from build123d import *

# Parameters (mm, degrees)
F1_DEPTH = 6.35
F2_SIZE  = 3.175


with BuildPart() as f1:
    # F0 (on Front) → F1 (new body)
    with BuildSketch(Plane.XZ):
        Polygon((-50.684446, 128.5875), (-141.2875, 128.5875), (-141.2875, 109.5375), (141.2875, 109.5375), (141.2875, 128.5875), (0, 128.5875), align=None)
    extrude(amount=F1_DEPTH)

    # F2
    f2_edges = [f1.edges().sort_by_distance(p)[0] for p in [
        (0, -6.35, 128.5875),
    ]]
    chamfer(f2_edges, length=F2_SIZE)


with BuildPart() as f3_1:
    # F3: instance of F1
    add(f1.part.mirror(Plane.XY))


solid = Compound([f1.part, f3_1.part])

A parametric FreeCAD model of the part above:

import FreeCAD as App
import Part
import Sketcher

V = App.Vector
Q = App.Units.Quantity


def edges_at(feature, points):
    """Names of the edges that pass closest to the given points."""
    edges = feature.Shape.Edges
    near = lambda p: min(range(len(edges)), key=lambda i: edges[i].distToShape(Part.Vertex(*p))[0])
    return sorted({f"Edge{near(p) + 1}" for p in points})

doc = App.newDocument("Part")
params = doc.addObject("Spreadsheet::Sheet", "Params")
for row, (alias, value) in enumerate([
    ("sketch1_height", "0.75 in"),
    ("sketch1_width", "11.125 in"),
    ("pad1_length", "0.25 in"),
    ("chamfer_size", "0.125 in"),
], start=1):
    params.set(f"A{row}", alias)
    params.set(f"B{row}", "=" + value)
    params.setAlias(f"B{row}", alias)

body = doc.addObject("PartDesign::Body", "Body")

# Sketch on XZ plane
sketch1 = doc.addObject("Sketcher::SketchObject", "Sketch")
body.addObject(sketch1)
sketch1.AttachmentSupport = (doc.XZ_Plane, [""])
sketch1.MapMode = "FlatFace"
sketch1.addGeometry([
    Part.LineSegment(V(-141, 129, 0), V(-141, 110, 0)),
    Part.LineSegment(V(-141, 110, 0), V(141, 110, 0)),
    Part.LineSegment(V(141, 110, 0), V(141, 129, 0)),
    Part.LineSegment(V(141, 129, 0), V(-141, 129, 0)),
], False)
sketch1.addConstraint([
    Sketcher.Constraint("Coincident", 0, 2, 1, 1),
    Sketcher.Constraint("Coincident", 1, 2, 2, 1),
    Sketcher.Constraint("Coincident", 2, 2, 3, 1),
    Sketcher.Constraint("Coincident", 3, 2, 0, 1),
    Sketcher.Constraint("Vertical", 0),
    Sketcher.Constraint("Horizontal", 1),
    Sketcher.Constraint("Vertical", 2),
    Sketcher.Constraint("Horizontal", 3),
    Sketcher.Constraint("DistanceY", 0, 2, 0, 1, Q("0.75 in")),
    Sketcher.Constraint("DistanceX", 1, 1, 1, 2, Q("11.125 in")),
    Sketcher.Constraint("DistanceX", 0, 2, -1, 1, Q("5.5625 in")),
    Sketcher.Constraint("DistanceY", -1, 1, 0, 2, Q("4.3125 in")),
])
sketch1.setExpression("Constraints[8]", "Params.sketch1_height")
sketch1.setExpression("Constraints[9]", "Params.sketch1_width")
pad1 = doc.addObject("PartDesign::Pad", "Pad")
body.addObject(pad1)
pad1.Profile = sketch1
pad1.setExpression("Length", "Params.pad1_length")
doc.recompute()

chamfer = doc.addObject("PartDesign::Chamfer", "Chamfer")
body.addObject(chamfer)
chamfer.Base = (pad1, edges_at(pad1, [(0, -6.35, 128.588)]))
chamfer.setExpression("Size", "Params.chamfer_size")
body2 = doc.addObject("PartDesign::Body", "Body001")
doc.recompute()

mirroring = doc.addObject("Part::Mirroring", "Mirroring")
mirroring.Source = body
mirroring.Base = V(0, 0, 0)
mirroring.Normal = V(0, 0, 1)
body2.BaseFeature = mirroring
doc.recompute()
mirroring.Visibility = False

doc.recompute()
